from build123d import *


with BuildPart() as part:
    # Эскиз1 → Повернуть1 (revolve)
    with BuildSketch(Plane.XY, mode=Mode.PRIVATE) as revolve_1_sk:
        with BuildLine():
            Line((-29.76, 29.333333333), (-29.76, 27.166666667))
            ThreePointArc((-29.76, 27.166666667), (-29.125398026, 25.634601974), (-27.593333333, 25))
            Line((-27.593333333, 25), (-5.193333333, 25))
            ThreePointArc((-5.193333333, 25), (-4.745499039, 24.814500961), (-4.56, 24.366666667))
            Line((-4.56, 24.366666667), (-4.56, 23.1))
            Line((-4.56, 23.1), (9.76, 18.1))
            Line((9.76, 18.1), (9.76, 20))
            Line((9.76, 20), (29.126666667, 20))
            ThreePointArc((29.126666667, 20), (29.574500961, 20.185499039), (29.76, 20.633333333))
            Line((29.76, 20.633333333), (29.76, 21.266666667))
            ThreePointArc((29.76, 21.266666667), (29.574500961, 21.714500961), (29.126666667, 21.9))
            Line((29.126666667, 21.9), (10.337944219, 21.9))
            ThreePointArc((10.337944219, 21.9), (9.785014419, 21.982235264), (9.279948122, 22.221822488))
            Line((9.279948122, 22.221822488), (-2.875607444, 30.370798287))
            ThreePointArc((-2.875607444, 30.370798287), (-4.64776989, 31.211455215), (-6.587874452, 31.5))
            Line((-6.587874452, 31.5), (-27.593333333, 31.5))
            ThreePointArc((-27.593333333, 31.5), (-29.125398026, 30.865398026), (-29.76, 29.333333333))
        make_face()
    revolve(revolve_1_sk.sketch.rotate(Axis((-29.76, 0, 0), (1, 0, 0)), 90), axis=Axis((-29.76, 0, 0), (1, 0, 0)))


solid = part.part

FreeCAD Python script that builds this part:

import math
import FreeCAD as App
import Part
import Sketcher

V = App.Vector

doc = App.newDocument("Part")
body = doc.addObject("PartDesign::Body", "Body")

# Sketch on XY plane
sketch1 = body.newObject("Sketcher::SketchObject", "Sketch")
sketch1.AttachmentSupport = (doc.getObject("XY_Plane"), [""])
sketch1.MapMode = "FlatFace"
sketch1.addGeometry(Part.LineSegment(V(-29.76, 29.333333, 0), V(-29.76, 27.166667, 0)), False)
sketch1.addGeometry(Part.ArcOfCircle(Part.Circle(V(-27.593333, 27.166667, 0), V(0, 0, 1), 2.166667), math.radians(180), math.radians(270)), False)
sketch1.addGeometry(Part.LineSegment(V(-27.593333, 25, 0), V(-5.193333, 25, 0)), False)
sketch1.addGeometry(Part.ArcOfCircle(Part.Circle(V(-5.193333, 24.366667, 0), V(0, 0, 1), 0.633333), math.radians(0), math.radians(90)), False)
sketch1.addGeometry(Part.LineSegment(V(-4.56, 24.366667, 0), V(-4.56, 23.1, 0)), False)
sketch1.addGeometry(Part.LineSegment(V(-4.56, 23.1, 0), V(9.76, 18.1, 0)), False)
sketch1.addGeometry(Part.LineSegment(V(9.76, 18.1, 0), V(9.76, 20, 0)), False)
sketch1.addGeometry(Part.LineSegment(V(9.76, 20, 0), V(29.126667, 20, 0)), False)
sketch1.addGeometry(Part.ArcOfCircle(Part.Circle(V(29.126667, 20.633333, 0), V(0, 0, 1), 0.633333), math.radians(-90), math.radians(0)), False)
sketch1.addGeometry(Part.LineSegment(V(29.76, 20.633333, 0), V(29.76, 21.266667, 0)), False)
sketch1.addGeometry(Part.ArcOfCircle(Part.Circle(V(29.126667, 21.266667, 0), V(0, 0, 1), 0.633333), math.radians(0), math.radians(90)), False)
sketch1.addGeometry(Part.LineSegment(V(29.126667, 21.9, 0), V(10.337944, 21.9, 0)), False)
sketch1.addGeometry(Part.ArcOfCircle(Part.Circle(V(10.337944, 23.8, 0), V(0, 0, 1), 1.9), math.radians(-123.837547), math.radians(-90)), False)
sketch1.addGeometry(Part.LineSegment(V(9.279948, 22.221822, 0), V(-2.875607, 30.370798, 0)), False)
sketch1.addGeometry(Part.ArcOfCircle(Part.Circle(V(-6.587874, 24.833333, 0), V(0, 0, 1), 6.666667), math.radians(56.162453), math.radians(90)), False)
sketch1.addGeometry(Part.LineSegment(V(-6.587874, 31.5, 0), V(-27.593333, 31.5, 0)), False)
sketch1.addGeometry(Part.ArcOfCircle(Part.Circle(V(-27.593333, 29.333333, 0), V(0, 0, 1), 2.166667), math.radians(90), math.radians(180)), False)
sketch1.addConstraint(Sketcher.Constraint("Tangent", 0, 2, 1, 1))
sketch1.addConstraint(Sketcher.Constraint("Tangent", 1, 2, 2, 1))
sketch1.addConstraint(Sketcher.Constraint("Tangent", 2, 2, 3, 2))
sketch1.addConstraint(Sketcher.Constraint("Tangent", 3, 1, 4, 1))
sketch1.addConstraint(Sketcher.Constraint("Coincident", 4, 2, 5, 1))
sketch1.addConstraint(Sketcher.Constraint("Coincident", 5, 2, 6, 1))
sketch1.addConstraint(Sketcher.Constraint("Coincident", 6, 2, 7, 1))
sketch1.addConstraint(Sketcher.Constraint("Tangent", 7, 2, 8, 1))
sketch1.addConstraint(Sketcher.Constraint("Tangent", 8, 2, 9, 1))
sketch1.addConstraint(Sketcher.Constraint("Tangent", 9, 2, 10, 1))
sketch1.addConstraint(Sketcher.Constraint("Tangent", 10, 2, 11, 1))
sketch1.addConstraint(Sketcher.Constraint("Tangent", 11, 2, 12, 2))
sketch1.addConstraint(Sketcher.Constraint("Tangent", 12, 1, 13, 1))
sketch1.addConstraint(Sketcher.Constraint("Tangent", 13, 2, 14, 1))
sketch1.addConstraint(Sketcher.Constraint("Tangent", 14, 2, 15, 1))
sketch1.addConstraint(Sketcher.Constraint("Tangent", 15, 2, 16, 1))
sketch1.addConstraint(Sketcher.Constraint("Tangent", 16, 2, 0, 1))
sketch1.addConstraint(Sketcher.Constraint("Vertical", 0))
sketch1.addConstraint(Sketcher.Constraint("Horizontal", 2))
sketch1.addConstraint(Sketcher.Constraint("Vertical", 4))
sketch1.addConstraint(Sketcher.Constraint("Vertical", 6))
sketch1.addConstraint(Sketcher.Constraint("Horizontal", 7))
sketch1.addConstraint(Sketcher.Constraint("Vertical", 9))
sketch1.addConstraint(Sketcher.Constraint("Horizontal", 11))
sketch1.addConstraint(Sketcher.Constraint("Horizontal", 15))
sketch1.addConstraint(Sketcher.Constraint("Equal", 3, 8))
sketch1.addConstraint(Sketcher.Constraint("Equal", 8, 10))
sketch1.addConstraint(Sketcher.Constraint("Equal", 1, 16))
sketch1.addConstraint(Sketcher.Constraint("Radius", 12, 1.9))
sketch1.addConstraint(Sketcher.Constraint("DistanceX", 2, 1, 2, 2, 22.4))
sketch1.addConstraint(Sketcher.Constraint("DistanceY", 6, 1, 6, 2, 1.9))
sketch1.addConstraint(Sketcher.Constraint("DistanceY", -1, 1, 1, 2, 25.0))
sketch1.addConstraint(Sketcher.Constraint("DistanceY", -1, 1, 6, 2, 20.0))
sketch1.addConstraint(Sketcher.Constraint("DistanceY", 5, 2, 4, 2, 5.0))
sketch1.addConstraint(Sketcher.Constraint("DistanceX", 6, 2, 8, 2, 20.0))
sketch1.addConstraint(Sketcher.Constraint("DistanceY", -1, 1, 12, 3, 23.8))
sketch1.addConstraint(Sketcher.Constraint("DistanceY", -1, 1, 14, 2, 31.5))
sketch1.addConstraint(Sketcher.Constraint("DistanceY", 3, 3, 1, 3, 2.8))
sketch1.addConstraint(Sketcher.Constraint("DistanceY", 8, 3, 14, 3, 4.2))
sketch1.addConstraint(Sketcher.Constraint("DistanceX", 0, 2, -1, 1, 29.76))
sketch1.addConstraint(Sketcher.Constraint("DistanceX", -1, 1, 5, 2, 9.76))
sketch1.addConstraint(Sketcher.Constraint("Radius", 1, 2.166667))
sketch1.addConstraint(Sketcher.Constraint("DistanceX", 15, 2, 15, 1, 21.005459))
sketch1.addConstraint(Sketcher.Constraint("DistanceY", -1, 1, 13, 2, 30.370798))
revolution = body.newObject("PartDesign::Revolution", "Revolution")
revolution.Profile = sketch1
revolution.ReferenceAxis = (sketch1, ["H_Axis"])
revolution.Angle = 360

doc.recompute()
